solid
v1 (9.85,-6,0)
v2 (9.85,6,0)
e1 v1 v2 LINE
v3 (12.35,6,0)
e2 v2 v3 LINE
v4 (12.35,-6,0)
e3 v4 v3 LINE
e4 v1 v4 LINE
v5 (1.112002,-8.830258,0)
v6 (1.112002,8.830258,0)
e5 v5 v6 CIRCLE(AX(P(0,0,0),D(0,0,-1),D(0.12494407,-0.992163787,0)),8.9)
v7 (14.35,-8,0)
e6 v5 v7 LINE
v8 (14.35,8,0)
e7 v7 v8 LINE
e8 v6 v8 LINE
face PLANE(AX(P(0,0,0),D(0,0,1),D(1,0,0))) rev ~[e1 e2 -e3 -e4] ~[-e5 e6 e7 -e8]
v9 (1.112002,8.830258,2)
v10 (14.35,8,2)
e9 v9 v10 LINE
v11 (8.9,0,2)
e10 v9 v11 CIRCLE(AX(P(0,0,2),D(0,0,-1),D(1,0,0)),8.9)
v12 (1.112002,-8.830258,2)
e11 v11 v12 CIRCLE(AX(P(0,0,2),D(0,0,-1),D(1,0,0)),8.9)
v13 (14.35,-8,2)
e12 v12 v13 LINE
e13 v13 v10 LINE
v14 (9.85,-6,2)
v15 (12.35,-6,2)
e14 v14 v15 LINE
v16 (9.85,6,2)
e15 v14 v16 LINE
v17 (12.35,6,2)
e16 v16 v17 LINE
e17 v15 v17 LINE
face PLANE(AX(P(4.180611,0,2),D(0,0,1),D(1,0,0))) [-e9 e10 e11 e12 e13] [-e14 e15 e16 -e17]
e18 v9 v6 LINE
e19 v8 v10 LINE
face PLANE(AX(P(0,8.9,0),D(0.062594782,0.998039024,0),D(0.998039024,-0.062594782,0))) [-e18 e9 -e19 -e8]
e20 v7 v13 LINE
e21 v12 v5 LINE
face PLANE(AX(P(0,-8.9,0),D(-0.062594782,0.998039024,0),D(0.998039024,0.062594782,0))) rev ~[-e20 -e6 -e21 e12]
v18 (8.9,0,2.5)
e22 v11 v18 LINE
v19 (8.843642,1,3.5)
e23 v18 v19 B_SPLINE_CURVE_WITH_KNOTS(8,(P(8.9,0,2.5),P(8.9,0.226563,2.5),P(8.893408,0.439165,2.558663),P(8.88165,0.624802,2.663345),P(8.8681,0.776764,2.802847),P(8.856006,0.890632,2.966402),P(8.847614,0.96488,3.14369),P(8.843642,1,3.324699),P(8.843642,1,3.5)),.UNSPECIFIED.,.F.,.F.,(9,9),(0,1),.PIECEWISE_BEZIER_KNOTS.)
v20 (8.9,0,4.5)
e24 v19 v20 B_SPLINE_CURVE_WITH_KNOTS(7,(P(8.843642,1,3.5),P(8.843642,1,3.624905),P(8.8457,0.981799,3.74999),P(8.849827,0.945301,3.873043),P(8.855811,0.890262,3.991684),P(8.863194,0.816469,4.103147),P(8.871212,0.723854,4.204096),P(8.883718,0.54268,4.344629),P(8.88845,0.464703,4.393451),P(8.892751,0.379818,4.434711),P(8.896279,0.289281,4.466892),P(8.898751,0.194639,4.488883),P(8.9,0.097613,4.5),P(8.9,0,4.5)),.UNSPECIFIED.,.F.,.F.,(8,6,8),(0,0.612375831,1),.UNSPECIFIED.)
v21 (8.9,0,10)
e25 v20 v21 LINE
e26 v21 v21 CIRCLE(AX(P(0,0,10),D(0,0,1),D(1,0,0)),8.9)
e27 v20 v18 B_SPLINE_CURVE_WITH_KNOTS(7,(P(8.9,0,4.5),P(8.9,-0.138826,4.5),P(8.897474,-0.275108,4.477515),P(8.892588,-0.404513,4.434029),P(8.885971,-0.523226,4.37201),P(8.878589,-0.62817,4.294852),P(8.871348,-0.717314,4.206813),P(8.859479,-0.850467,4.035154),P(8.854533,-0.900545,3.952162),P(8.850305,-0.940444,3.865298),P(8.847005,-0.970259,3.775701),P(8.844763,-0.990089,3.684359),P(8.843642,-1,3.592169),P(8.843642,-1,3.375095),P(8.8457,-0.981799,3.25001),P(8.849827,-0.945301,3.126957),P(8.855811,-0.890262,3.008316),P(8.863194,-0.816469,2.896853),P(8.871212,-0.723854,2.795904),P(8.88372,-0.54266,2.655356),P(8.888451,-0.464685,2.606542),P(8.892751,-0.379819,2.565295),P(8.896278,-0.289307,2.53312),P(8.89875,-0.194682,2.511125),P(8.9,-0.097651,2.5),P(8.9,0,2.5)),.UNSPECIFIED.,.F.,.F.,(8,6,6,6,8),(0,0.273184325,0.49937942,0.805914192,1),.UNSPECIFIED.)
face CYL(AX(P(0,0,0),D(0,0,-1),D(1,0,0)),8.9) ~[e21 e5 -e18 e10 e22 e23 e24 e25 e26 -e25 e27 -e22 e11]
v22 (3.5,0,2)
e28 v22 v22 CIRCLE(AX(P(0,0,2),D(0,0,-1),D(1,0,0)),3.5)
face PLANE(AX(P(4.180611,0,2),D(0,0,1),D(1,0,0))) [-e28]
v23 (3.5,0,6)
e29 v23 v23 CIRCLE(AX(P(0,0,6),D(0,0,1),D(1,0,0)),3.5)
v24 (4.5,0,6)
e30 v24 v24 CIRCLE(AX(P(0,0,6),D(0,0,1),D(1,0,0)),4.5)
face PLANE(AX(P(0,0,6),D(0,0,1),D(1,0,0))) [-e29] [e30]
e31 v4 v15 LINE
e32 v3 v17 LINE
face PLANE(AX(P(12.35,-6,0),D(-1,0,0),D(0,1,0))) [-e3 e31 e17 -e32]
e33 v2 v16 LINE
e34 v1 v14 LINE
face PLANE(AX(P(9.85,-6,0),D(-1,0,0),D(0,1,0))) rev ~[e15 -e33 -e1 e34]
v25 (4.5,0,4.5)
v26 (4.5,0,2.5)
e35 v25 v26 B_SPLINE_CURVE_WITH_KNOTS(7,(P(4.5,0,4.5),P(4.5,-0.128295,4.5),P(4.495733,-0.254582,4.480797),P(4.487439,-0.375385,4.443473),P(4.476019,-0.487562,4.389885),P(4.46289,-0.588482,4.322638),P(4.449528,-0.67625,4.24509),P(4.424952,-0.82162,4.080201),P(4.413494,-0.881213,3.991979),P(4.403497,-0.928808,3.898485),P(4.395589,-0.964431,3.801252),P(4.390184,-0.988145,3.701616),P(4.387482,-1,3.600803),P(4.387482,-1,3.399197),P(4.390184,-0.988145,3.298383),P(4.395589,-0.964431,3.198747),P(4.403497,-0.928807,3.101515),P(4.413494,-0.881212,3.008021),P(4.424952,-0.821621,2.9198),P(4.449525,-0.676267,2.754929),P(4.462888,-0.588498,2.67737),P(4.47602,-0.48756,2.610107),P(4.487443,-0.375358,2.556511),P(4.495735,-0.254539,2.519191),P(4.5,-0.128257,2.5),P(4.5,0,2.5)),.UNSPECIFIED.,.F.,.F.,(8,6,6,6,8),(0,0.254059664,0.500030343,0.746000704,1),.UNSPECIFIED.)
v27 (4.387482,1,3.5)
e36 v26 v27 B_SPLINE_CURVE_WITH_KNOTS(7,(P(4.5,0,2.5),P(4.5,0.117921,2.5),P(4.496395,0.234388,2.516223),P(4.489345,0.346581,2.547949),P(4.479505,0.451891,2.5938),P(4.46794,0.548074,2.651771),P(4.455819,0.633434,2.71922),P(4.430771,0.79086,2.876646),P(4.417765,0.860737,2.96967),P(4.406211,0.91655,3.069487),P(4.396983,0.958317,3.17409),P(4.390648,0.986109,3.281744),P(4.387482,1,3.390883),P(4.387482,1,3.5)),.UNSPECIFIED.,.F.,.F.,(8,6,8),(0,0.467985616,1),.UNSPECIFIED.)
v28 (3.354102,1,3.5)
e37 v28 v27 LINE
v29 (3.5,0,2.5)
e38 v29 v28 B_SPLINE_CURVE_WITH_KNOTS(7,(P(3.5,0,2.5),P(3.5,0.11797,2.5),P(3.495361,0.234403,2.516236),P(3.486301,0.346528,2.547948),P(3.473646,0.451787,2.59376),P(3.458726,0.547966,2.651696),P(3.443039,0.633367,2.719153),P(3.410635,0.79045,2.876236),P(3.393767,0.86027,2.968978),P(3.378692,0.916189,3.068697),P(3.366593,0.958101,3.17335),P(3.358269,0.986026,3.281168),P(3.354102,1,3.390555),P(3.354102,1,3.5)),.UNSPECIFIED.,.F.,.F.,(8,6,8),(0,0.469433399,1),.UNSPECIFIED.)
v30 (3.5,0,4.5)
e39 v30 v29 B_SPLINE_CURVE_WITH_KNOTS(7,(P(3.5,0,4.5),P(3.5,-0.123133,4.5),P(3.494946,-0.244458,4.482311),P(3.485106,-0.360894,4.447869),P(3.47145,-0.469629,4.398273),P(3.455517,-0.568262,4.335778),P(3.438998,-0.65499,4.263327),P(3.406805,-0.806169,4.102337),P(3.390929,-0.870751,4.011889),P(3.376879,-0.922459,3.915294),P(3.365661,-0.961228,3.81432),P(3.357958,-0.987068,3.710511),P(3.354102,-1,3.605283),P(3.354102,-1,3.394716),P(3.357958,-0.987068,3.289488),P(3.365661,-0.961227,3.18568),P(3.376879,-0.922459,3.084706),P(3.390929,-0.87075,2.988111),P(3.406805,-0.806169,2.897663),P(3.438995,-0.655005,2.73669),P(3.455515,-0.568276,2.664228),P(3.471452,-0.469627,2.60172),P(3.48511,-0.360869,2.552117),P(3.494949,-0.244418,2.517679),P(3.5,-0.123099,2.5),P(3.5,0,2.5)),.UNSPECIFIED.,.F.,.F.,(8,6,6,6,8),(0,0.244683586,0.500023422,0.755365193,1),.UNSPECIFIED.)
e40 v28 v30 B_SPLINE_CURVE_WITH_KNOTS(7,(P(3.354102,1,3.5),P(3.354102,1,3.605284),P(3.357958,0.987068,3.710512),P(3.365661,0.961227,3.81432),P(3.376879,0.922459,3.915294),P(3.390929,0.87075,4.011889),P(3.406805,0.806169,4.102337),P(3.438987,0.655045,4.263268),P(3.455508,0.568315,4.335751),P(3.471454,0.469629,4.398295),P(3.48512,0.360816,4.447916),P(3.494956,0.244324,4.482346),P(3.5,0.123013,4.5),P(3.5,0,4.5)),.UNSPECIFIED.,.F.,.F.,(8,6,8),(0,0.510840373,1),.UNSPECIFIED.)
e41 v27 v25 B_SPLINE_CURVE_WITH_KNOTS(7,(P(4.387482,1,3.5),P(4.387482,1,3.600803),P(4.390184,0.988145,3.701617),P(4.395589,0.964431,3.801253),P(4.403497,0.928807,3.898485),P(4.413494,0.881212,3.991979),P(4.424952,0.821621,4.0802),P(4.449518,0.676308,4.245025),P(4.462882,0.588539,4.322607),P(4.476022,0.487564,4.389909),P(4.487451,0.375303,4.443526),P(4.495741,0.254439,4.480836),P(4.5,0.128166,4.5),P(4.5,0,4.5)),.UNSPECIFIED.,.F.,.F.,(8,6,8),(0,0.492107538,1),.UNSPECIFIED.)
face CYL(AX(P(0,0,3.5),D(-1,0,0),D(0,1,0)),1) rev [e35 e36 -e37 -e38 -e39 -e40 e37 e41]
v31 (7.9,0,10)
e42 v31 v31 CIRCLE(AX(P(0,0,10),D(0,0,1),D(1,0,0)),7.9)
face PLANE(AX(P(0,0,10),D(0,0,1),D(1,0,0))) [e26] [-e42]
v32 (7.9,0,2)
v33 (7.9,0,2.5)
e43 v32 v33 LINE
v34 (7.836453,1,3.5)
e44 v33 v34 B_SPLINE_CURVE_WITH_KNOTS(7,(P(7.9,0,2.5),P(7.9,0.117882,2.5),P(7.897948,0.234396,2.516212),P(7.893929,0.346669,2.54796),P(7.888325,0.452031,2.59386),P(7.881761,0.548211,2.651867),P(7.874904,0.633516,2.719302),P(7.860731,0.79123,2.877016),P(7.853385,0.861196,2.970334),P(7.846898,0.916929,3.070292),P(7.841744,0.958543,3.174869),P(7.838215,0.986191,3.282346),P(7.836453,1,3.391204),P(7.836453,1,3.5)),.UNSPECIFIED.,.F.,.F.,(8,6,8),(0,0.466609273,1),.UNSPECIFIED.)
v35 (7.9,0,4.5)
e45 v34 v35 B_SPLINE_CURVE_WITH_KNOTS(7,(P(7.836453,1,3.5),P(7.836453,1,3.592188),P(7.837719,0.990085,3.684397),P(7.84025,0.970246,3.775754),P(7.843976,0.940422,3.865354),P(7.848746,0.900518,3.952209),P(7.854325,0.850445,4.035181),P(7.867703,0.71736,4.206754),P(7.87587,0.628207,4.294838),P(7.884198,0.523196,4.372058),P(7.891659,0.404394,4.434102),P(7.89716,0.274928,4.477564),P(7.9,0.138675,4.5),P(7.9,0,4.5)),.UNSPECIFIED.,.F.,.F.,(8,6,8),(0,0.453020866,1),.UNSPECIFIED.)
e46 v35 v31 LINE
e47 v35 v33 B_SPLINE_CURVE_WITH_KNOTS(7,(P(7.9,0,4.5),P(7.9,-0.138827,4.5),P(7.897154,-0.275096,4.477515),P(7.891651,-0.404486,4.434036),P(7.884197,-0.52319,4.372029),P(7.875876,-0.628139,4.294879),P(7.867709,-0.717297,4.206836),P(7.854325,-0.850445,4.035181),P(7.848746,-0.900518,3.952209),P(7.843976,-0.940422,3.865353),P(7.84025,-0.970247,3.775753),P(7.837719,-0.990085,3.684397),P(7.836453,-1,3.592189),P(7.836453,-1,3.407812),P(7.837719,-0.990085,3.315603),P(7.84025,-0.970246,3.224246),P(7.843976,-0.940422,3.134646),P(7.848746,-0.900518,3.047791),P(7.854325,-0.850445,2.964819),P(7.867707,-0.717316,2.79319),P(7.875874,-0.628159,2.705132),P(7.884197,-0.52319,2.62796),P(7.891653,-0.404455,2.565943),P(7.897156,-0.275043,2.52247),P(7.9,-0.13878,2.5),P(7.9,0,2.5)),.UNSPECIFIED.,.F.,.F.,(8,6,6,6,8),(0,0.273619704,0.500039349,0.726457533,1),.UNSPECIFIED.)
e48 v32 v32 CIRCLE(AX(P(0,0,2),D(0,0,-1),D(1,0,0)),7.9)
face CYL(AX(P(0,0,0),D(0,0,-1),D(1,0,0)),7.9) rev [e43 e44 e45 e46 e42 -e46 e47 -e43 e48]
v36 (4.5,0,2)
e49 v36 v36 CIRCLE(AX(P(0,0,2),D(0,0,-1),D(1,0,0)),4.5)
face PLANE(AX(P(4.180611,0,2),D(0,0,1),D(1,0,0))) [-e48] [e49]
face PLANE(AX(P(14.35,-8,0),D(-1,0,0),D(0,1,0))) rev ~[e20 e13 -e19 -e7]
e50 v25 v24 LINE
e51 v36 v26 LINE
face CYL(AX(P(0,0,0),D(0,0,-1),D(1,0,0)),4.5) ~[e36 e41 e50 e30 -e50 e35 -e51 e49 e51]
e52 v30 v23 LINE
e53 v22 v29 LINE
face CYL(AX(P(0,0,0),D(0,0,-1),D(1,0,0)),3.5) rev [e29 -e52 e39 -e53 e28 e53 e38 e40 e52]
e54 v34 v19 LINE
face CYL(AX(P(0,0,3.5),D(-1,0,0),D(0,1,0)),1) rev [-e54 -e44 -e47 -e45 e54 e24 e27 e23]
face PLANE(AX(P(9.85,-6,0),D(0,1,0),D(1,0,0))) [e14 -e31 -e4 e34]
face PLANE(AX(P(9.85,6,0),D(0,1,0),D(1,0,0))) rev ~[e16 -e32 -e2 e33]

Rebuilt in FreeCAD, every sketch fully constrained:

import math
import FreeCAD as App
import Part
import Sketcher

V = App.Vector

doc = App.newDocument("Part")
body = doc.addObject("PartDesign::Body", "Body")

# Sketch on XY plane
sketch1 = body.newObject("Sketcher::SketchObject", "Sketch")
sketch1.AttachmentSupport = (doc.getObject("XY_Plane"), [""])
sketch1.MapMode = "FlatFace"
sketch1.addGeometry([
    Part.Circle(V(0, 0, 0), V(0, 0, 1), 9),
    Part.Circle(V(0, 0, 0), V(0, 0, 1), 8),
], False)
sketch1.addConstraint([
    Sketcher.Constraint("Coincident", 0, 3, -1, 1),
    Sketcher.Constraint("Coincident", 1, 3, -1, 1),
    Sketcher.Constraint("Diameter", 0, 17.8),
    Sketcher.Constraint("Diameter", 1, 15.8),
])
pad1 = body.newObject("PartDesign::Pad", "Pad")
pad1.Profile = sketch1
pad1.Length = 10

# Sketch on XY plane
sketch2 = body.newObject("Sketcher::SketchObject", "Sketch001")
sketch2.AttachmentSupport = (doc.getObject("XY_Plane"), [""])
sketch2.MapMode = "FlatFace"
sketch2.addGeometry([
    Part.LineSegment(V(14.3, -8, 0), V(14.3, 8, 0)),  # 0
    Part.LineSegment(V(14.3, 8, 0), V(0, 8.9, 0)),  # 1
    Part.ArcOfCircle(Part.Circle(V(0, 0, 0), V(0, 0, 1), 8.9), math.radians(90), math.radians(270)),  # 2
    Part.LineSegment(V(0, -8.9, 0), V(14.3, -8, 0)),  # 3
    Part.LineSegment(V(12.3, -6, 0), V(9.8, -6, 0)),  # 4
    Part.LineSegment(V(9.8, -6, 0), V(9.8, 6, 0)),  # 5
    Part.LineSegment(V(9.8, 6, 0), V(12.3, 6, 0)),  # 6
    Part.LineSegment(V(12.3, 6, 0), V(12.3, -6, 0)),  # 7
], False)
sketch2.addConstraint([
    Sketcher.Constraint("Coincident", 0, 2, 1, 1),
    Sketcher.Constraint("Coincident", 1, 2, 2, 1),
    Sketcher.Constraint("Coincident", 2, 2, 3, 1),
    Sketcher.Constraint("Coincident", 3, 2, 0, 1),
    Sketcher.Constraint("Coincident", 4, 2, 5, 1),
    Sketcher.Constraint("Coincident", 5, 2, 6, 1),
    Sketcher.Constraint("Coincident", 6, 2, 7, 1),
    Sketcher.Constraint("Coincident", 7, 2, 4, 1),
    Sketcher.Constraint("Vertical", 0),
    Sketcher.Constraint("Horizontal", 4),
    Sketcher.Constraint("Vertical", 5),
    Sketcher.Constraint("Horizontal", 6),
    Sketcher.Constraint("Vertical", 7),
    Sketcher.Constraint("Coincident", 2, 3, -1, 1),
    Sketcher.Constraint("PointOnObject", 1, 2, -2),
    Sketcher.Constraint("PointOnObject", 2, 2, -2),
    Sketcher.Constraint("Equal", 1, 3),
    Sketcher.Constraint("Radius", 2, 8.9),
    Sketcher.Constraint("DistanceY", 0, 1, 0, 2, 16.0),
    Sketcher.Constraint("DistanceY", 5, 1, 5, 2, 12.0),
    Sketcher.Constraint("DistanceX", 4, 2, 4, 1, 2.5),
    Sketcher.Constraint("DistanceY", 4, 2, -1, 1, 6.0),
    Sketcher.Constraint("DistanceX", 6, 2, 0, 2, 2.0),
    Sketcher.Constraint("DistanceX", -1, 1, 0, 2, 14.35),
])
pad2 = body.newObject("PartDesign::Pad", "Pad001")
pad2.Profile = sketch2
pad2.Length = 2

# Sketch on XY plane
sketch3 = body.newObject("Sketcher::SketchObject", "Sketch002")
sketch3.AttachmentSupport = (doc.getObject("XY_Plane"), [""])
sketch3.MapMode = "FlatFace"
sketch3.addGeometry([
    Part.Circle(V(0, 0, 0), V(0, 0, 1), 4.5),
    Part.Circle(V(0, 0, 0), V(0, 0, 1), 3.5),
], False)
sketch3.addConstraint([
    Sketcher.Constraint("Coincident", 0, 3, -1, 1),
    Sketcher.Constraint("Coincident", 1, 3, -1, 1),
    Sketcher.Constraint("Diameter", 0, 9.0),
    Sketcher.Constraint("Diameter", 1, 7.0),
])
pad3 = body.newObject("PartDesign::Pad", "Pad002")
pad3.Profile = sketch3
pad3.Length = 6

# Sketch on YZ plane
sketch4 = body.newObject("Sketcher::SketchObject", "Sketch003")
sketch4.AttachmentSupport = (doc.getObject("YZ_Plane"), [""])
sketch4.MapMode = "FlatFace"
sketch4.addGeometry(Part.Circle(V(0, 3.5, 0), V(0, 0, 1), 1), False)
sketch4.addConstraint([
    Sketcher.Constraint("PointOnObject", 0, 3, -2),
    Sketcher.Constraint("Diameter", 0, 2.0),
    Sketcher.Constraint("DistanceY", -1, 1, 0, 3, 3.5),
])
pocket1 = body.newObject("PartDesign::Pocket", "Pocket")
pocket1.Profile = sketch4
pocket1.Type = "ThroughAll"
pocket1.Reversed = True

doc.recompute()
